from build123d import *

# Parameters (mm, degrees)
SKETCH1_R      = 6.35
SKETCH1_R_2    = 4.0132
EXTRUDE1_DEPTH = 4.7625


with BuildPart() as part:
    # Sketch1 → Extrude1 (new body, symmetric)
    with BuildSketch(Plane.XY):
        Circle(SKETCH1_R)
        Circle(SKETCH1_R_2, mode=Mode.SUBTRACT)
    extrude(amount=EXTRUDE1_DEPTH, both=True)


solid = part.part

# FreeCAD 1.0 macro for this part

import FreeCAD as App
import Part
import Sketcher
from FreeCAD import Vector
Q = App.Units.Quantity

doc = App.newDocument("Part")
params = doc.addObject("Spreadsheet::Sheet", "Params")
for row, (alias, value) in enumerate([
    ("sketch1_diameter", "0.5 in"),
    ("sketch1_diameter2", "0.316 in"),
    ("pad1_length", "0.375 in"),
], start=1):
    params.set(f"A{row}", alias)
    params.set(f"B{row}", "=" + value)
    params.setAlias(f"B{row}", alias)

body = doc.addObject("PartDesign::Body", "Body")

sketch1 = body.newObject("Sketcher::SketchObject", "Sketch")
sketch1.AttachmentSupport = (doc.getObject("XY_Plane"), [""])
sketch1.MapMode = "FlatFace"
sketch1.addGeometry(Part.Circle(Vector(0, 0, 0), Vector(0, 0, 1), 6.35), False)
sketch1.addGeometry(Part.Circle(Vector(0, 0, 0), Vector(0, 0, 1), 4.0132), False)
sketch1.addConstraint(Sketcher.Constraint("Coincident", 0, 3, -1, 1))
sketch1.addConstraint(Sketcher.Constraint("Coincident", 1, 3, -1, 1))
sketch1.addConstraint(Sketcher.Constraint("Diameter", 0, Q("0.5 in")))
sketch1.addConstraint(Sketcher.Constraint("Diameter", 1, Q("0.316 in")))
sketch1.setExpression("Constraints[2]", "Params.sketch1_diameter")
sketch1.setExpression("Constraints[3]", "Params.sketch1_diameter2")
pad1 = body.newObject("PartDesign::Pad", "Pad")
pad1.Profile = sketch1
pad1.setExpression("Length", "Params.pad1_length")
pad1.Midplane = True

doc.recompute()
